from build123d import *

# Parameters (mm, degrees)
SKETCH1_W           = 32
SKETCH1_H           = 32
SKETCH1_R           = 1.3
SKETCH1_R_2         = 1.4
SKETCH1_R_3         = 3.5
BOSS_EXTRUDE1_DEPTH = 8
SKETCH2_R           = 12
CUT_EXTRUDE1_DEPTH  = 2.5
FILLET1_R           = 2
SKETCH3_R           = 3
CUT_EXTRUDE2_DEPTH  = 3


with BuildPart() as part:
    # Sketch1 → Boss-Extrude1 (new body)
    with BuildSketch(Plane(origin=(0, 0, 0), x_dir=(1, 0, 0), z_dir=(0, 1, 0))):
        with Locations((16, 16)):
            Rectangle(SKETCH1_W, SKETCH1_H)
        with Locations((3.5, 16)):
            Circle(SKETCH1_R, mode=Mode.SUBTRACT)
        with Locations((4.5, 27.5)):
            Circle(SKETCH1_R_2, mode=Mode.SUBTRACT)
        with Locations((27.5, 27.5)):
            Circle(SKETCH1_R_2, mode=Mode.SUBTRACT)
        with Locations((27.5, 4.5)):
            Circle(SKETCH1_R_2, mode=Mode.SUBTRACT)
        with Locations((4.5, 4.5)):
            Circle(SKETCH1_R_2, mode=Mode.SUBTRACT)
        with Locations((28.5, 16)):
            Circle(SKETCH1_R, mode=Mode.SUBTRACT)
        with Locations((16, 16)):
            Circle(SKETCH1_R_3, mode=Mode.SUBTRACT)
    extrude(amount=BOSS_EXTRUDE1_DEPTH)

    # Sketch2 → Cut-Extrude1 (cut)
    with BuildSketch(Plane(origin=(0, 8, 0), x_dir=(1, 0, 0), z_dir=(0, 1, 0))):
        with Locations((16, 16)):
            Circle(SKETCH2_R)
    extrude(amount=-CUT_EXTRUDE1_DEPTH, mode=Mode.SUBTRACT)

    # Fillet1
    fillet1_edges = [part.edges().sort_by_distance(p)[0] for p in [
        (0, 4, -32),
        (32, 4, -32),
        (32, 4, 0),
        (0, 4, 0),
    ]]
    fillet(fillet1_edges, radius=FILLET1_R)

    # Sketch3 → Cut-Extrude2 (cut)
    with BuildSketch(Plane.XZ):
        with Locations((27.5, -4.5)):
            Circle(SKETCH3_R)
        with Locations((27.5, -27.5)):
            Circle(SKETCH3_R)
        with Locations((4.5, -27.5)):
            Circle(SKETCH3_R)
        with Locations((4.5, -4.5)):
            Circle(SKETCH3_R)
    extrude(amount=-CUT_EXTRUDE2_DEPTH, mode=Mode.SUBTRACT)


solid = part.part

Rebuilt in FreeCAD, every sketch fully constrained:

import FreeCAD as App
import Part
import Sketcher

V = App.Vector
Q = App.Units.Quantity


def edges_at(feature, points):
    """Names of the edges that pass closest to the given points."""
    edges = feature.Shape.Edges
    near = lambda p: min(range(len(edges)), key=lambda i: edges[i].distToShape(Part.Vertex(*p))[0])
    return sorted({f"Edge{near(p) + 1}" for p in points})


def add_polygon(sketch, points):
    """Adds a closed chain of lines whose ends are joined by coincident constraints."""
    first, n = sketch.GeometryCount, len(points)
    for a, b in zip(points, points[1:] + points[:1]):
        sketch.addGeometry(Part.LineSegment(App.Vector(*a, 0), App.Vector(*b, 0)), False)
    for i in range(n):
        sketch.addConstraint(Sketcher.Constraint("Coincident", first + i, 2, first + (i + 1) % n, 1))

doc = App.newDocument("Part")
params = doc.addObject("Spreadsheet::Sheet", "Params")
for row, (alias, value) in enumerate([
    ("sketch1_diameter", "7 mm"),
    ("sketch1_diameter2", "2.8 mm"),
    ("sketch1_diameter3", "2.6 mm"),
    ("sketch1_width", "32 mm"),
    ("pad1_length", "8 mm"),
    ("sketch2_diameter", "24 mm"),
    ("pocket1_length", "2.5 mm"),
    ("fillet_radius", "2 mm"),
    ("sketch3_diameter", "6 mm"),
    ("pocket2_length", "3 mm"),
], start=1):
    params.set(f"A{row}", alias)
    params.set(f"B{row}", "=" + value)
    params.setAlias(f"B{row}", alias)

body = doc.addObject("PartDesign::Body", "Body")

# Sketch on XZ plane
sketch1 = body.newObject("Sketcher::SketchObject", "Sketch")
sketch1.AttachmentSupport = (doc.getObject("XZ_Plane"), [""])
sketch1.MapMode = "FlatFace"
add_polygon(sketch1, [(0, -32), (0, 0), (32, 0), (32, -32)])  # lines 0-3
sketch1.addGeometry(Part.Circle(V(4.5, -4.5, 0), V(0, 0, 1), 1.4), False)  # 4
sketch1.addGeometry(Part.Circle(V(27.5, -4.5, 0), V(0, 0, 1), 1.4), False)  # 5
sketch1.addGeometry(Part.Circle(V(3.5, -16, 0), V(0, 0, 1), 1.3), False)  # 6
sketch1.addGeometry(Part.Circle(V(4.5, -27.5, 0), V(0, 0, 1), 1.4), False)  # 7
sketch1.addGeometry(Part.Circle(V(16, -16, 0), V(0, 0, 1), 3.5), False)  # 8
sketch1.addGeometry(Part.Circle(V(28.5, -16, 0), V(0, 0, 1), 1.3), False)  # 9
sketch1.addGeometry(Part.Circle(V(27.5, -27.5, 0), V(0, 0, 1), 1.4), False)  # 10
sketch1.addConstraint([
    Sketcher.Constraint("Vertical", 0),
    Sketcher.Constraint("Horizontal", 1),
    Sketcher.Constraint("Vertical", 2),
    Sketcher.Constraint("Horizontal", 3),
    Sketcher.Constraint("Coincident", 0, 2, -1, 1),
    Sketcher.Constraint("Equal", 4, 5),
    Sketcher.Constraint("Equal", 5, 7),
    Sketcher.Constraint("Equal", 6, 9),
    Sketcher.Constraint("Equal", 7, 10),
    Sketcher.Constraint("Horizontal", 4, 3, 5, 3),
    Sketcher.Constraint("Horizontal", 6, 3, 8, 3),
    Sketcher.Constraint("Horizontal", 8, 3, 9, 3),
    Sketcher.Constraint("Horizontal", 7, 3, 10, 3),
    Sketcher.Constraint("Vertical", 4, 3, 7, 3),
    Sketcher.Constraint("Vertical", 5, 3, 10, 3),
    Sketcher.Constraint("Equal", 3, 0),
    Sketcher.Constraint("Diameter", 8, Q("7 mm")),
    Sketcher.Constraint("Diameter", 4, Q("2.8 mm")),
    Sketcher.Constraint("Diameter", 6, Q("2.6 mm")),
    Sketcher.Constraint("DistanceX", 1, 1, 1, 2, Q("32 mm")),
    Sketcher.Constraint("DistanceY", 6, 3, -1, 1, Q("16 mm")),
    Sketcher.Constraint("DistanceX", -1, 1, 8, 3, Q("16 mm")),
    Sketcher.Constraint("DistanceX", 4, 3, 5, 3, Q("23 mm")),
    Sketcher.Constraint("DistanceX", 6, 3, 4, 3, Q("1 mm")),
    Sketcher.Constraint("DistanceY", 7, 3, 4, 3, Q("23 mm")),
    Sketcher.Constraint("DistanceX", 5, 3, 9, 3, Q("1 mm")),
    Sketcher.Constraint("DistanceX", -1, 1, 4, 3, Q("4.5 mm")),
    Sketcher.Constraint("DistanceY", 4, 3, -1, 1, Q("4.5 mm")),
])
sketch1.setExpression("Constraints[20]", "Params.sketch1_diameter")
sketch1.setExpression("Constraints[21]", "Params.sketch1_diameter2")
sketch1.setExpression("Constraints[22]", "Params.sketch1_diameter3")
sketch1.setExpression("Constraints[23]", "Params.sketch1_width")
pad1 = body.newObject("PartDesign::Pad", "Pad")
pad1.Profile = sketch1
pad1.setExpression("Length", "Params.pad1_length")
pad1.Reversed = True

# Sketch on XZ plane
sketch2 = body.newObject("Sketcher::SketchObject", "Sketch001")
sketch2.AttachmentSupport = (doc.getObject("XZ_Plane"), [""])
sketch2.MapMode = "FlatFace"
sketch2.AttachmentOffset = App.Placement(V(0, 0, -8), App.Rotation())
sketch2.addGeometry(Part.Circle(V(16, -16, 0), V(0, 0, 1), 12), False)
sketch2.addConstraint([
    Sketcher.Constraint("Diameter", 0, Q("24 mm")),
    Sketcher.Constraint("DistanceX", -1, 1, 0, 3, Q("16 mm")),
    Sketcher.Constraint("DistanceY", 0, 3, -1, 1, Q("16 mm")),
])
sketch2.setExpression("Constraints[0]", "Params.sketch2_diameter")
pocket1 = body.newObject("PartDesign::Pocket", "Pocket")
pocket1.Profile = sketch2
pocket1.setExpression("Length", "Params.pocket1_length")
pocket1.Reversed = True
doc.recompute()

fillet = body.newObject("PartDesign::Fillet", "Fillet")
fillet.Base = (pocket1, edges_at(pocket1, [
    (0, 4, -32),
    (32, 4, -32),
    (32, 4, 0),
    (0, 4, 0),
]))
fillet.setExpression("Radius", "Params.fillet_radius")

# Sketch on XZ plane
sketch3 = body.newObject("Sketcher::SketchObject", "Sketch002")
sketch3.AttachmentSupport = (doc.getObject("XZ_Plane"), [""])
sketch3.MapMode = "FlatFace"
sketch3.addGeometry([
    Part.Circle(V(27.5, -4.5, 0), V(0, 0, 1), 3),
    Part.Circle(V(27.5, -27.5, 0), V(0, 0, 1), 3),
    Part.Circle(V(4.5, -27.5, 0), V(0, 0, 1), 3),
    Part.Circle(V(4.5, -4.5, 0), V(0, 0, 1), 3),
], False)
sketch3.addConstraint([
    Sketcher.Constraint("Equal", 0, 1),
    Sketcher.Constraint("Equal", 1, 2),
    Sketcher.Constraint("Equal", 2, 3),
    Sketcher.Constraint("Horizontal", 1, 3, 2, 3),
    Sketcher.Constraint("Horizontal", 0, 3, 3, 3),
    Sketcher.Constraint("Vertical", 0, 3, 1, 3),
    Sketcher.Constraint("Vertical", 2, 3, 3, 3),
    Sketcher.Constraint("Diameter", 0, Q("6 mm")),
    Sketcher.Constraint("DistanceY", 1, 3, 0, 3, Q("23 mm")),
    Sketcher.Constraint("DistanceX", 2, 3, 1, 3, Q("23 mm")),
    Sketcher.Constraint("DistanceX", -1, 1, 0, 3, Q("27.5 mm")),
    Sketcher.Constraint("DistanceY", 0, 3, -1, 1, Q("4.5 mm")),
])
sketch3.setExpression("Constraints[7]", "Params.sketch3_diameter")
pocket2 = body.newObject("PartDesign::Pocket", "Pocket001")
pocket2.Profile = sketch3
pocket2.setExpression("Length", "Params.pocket2_length")

doc.recompute()
